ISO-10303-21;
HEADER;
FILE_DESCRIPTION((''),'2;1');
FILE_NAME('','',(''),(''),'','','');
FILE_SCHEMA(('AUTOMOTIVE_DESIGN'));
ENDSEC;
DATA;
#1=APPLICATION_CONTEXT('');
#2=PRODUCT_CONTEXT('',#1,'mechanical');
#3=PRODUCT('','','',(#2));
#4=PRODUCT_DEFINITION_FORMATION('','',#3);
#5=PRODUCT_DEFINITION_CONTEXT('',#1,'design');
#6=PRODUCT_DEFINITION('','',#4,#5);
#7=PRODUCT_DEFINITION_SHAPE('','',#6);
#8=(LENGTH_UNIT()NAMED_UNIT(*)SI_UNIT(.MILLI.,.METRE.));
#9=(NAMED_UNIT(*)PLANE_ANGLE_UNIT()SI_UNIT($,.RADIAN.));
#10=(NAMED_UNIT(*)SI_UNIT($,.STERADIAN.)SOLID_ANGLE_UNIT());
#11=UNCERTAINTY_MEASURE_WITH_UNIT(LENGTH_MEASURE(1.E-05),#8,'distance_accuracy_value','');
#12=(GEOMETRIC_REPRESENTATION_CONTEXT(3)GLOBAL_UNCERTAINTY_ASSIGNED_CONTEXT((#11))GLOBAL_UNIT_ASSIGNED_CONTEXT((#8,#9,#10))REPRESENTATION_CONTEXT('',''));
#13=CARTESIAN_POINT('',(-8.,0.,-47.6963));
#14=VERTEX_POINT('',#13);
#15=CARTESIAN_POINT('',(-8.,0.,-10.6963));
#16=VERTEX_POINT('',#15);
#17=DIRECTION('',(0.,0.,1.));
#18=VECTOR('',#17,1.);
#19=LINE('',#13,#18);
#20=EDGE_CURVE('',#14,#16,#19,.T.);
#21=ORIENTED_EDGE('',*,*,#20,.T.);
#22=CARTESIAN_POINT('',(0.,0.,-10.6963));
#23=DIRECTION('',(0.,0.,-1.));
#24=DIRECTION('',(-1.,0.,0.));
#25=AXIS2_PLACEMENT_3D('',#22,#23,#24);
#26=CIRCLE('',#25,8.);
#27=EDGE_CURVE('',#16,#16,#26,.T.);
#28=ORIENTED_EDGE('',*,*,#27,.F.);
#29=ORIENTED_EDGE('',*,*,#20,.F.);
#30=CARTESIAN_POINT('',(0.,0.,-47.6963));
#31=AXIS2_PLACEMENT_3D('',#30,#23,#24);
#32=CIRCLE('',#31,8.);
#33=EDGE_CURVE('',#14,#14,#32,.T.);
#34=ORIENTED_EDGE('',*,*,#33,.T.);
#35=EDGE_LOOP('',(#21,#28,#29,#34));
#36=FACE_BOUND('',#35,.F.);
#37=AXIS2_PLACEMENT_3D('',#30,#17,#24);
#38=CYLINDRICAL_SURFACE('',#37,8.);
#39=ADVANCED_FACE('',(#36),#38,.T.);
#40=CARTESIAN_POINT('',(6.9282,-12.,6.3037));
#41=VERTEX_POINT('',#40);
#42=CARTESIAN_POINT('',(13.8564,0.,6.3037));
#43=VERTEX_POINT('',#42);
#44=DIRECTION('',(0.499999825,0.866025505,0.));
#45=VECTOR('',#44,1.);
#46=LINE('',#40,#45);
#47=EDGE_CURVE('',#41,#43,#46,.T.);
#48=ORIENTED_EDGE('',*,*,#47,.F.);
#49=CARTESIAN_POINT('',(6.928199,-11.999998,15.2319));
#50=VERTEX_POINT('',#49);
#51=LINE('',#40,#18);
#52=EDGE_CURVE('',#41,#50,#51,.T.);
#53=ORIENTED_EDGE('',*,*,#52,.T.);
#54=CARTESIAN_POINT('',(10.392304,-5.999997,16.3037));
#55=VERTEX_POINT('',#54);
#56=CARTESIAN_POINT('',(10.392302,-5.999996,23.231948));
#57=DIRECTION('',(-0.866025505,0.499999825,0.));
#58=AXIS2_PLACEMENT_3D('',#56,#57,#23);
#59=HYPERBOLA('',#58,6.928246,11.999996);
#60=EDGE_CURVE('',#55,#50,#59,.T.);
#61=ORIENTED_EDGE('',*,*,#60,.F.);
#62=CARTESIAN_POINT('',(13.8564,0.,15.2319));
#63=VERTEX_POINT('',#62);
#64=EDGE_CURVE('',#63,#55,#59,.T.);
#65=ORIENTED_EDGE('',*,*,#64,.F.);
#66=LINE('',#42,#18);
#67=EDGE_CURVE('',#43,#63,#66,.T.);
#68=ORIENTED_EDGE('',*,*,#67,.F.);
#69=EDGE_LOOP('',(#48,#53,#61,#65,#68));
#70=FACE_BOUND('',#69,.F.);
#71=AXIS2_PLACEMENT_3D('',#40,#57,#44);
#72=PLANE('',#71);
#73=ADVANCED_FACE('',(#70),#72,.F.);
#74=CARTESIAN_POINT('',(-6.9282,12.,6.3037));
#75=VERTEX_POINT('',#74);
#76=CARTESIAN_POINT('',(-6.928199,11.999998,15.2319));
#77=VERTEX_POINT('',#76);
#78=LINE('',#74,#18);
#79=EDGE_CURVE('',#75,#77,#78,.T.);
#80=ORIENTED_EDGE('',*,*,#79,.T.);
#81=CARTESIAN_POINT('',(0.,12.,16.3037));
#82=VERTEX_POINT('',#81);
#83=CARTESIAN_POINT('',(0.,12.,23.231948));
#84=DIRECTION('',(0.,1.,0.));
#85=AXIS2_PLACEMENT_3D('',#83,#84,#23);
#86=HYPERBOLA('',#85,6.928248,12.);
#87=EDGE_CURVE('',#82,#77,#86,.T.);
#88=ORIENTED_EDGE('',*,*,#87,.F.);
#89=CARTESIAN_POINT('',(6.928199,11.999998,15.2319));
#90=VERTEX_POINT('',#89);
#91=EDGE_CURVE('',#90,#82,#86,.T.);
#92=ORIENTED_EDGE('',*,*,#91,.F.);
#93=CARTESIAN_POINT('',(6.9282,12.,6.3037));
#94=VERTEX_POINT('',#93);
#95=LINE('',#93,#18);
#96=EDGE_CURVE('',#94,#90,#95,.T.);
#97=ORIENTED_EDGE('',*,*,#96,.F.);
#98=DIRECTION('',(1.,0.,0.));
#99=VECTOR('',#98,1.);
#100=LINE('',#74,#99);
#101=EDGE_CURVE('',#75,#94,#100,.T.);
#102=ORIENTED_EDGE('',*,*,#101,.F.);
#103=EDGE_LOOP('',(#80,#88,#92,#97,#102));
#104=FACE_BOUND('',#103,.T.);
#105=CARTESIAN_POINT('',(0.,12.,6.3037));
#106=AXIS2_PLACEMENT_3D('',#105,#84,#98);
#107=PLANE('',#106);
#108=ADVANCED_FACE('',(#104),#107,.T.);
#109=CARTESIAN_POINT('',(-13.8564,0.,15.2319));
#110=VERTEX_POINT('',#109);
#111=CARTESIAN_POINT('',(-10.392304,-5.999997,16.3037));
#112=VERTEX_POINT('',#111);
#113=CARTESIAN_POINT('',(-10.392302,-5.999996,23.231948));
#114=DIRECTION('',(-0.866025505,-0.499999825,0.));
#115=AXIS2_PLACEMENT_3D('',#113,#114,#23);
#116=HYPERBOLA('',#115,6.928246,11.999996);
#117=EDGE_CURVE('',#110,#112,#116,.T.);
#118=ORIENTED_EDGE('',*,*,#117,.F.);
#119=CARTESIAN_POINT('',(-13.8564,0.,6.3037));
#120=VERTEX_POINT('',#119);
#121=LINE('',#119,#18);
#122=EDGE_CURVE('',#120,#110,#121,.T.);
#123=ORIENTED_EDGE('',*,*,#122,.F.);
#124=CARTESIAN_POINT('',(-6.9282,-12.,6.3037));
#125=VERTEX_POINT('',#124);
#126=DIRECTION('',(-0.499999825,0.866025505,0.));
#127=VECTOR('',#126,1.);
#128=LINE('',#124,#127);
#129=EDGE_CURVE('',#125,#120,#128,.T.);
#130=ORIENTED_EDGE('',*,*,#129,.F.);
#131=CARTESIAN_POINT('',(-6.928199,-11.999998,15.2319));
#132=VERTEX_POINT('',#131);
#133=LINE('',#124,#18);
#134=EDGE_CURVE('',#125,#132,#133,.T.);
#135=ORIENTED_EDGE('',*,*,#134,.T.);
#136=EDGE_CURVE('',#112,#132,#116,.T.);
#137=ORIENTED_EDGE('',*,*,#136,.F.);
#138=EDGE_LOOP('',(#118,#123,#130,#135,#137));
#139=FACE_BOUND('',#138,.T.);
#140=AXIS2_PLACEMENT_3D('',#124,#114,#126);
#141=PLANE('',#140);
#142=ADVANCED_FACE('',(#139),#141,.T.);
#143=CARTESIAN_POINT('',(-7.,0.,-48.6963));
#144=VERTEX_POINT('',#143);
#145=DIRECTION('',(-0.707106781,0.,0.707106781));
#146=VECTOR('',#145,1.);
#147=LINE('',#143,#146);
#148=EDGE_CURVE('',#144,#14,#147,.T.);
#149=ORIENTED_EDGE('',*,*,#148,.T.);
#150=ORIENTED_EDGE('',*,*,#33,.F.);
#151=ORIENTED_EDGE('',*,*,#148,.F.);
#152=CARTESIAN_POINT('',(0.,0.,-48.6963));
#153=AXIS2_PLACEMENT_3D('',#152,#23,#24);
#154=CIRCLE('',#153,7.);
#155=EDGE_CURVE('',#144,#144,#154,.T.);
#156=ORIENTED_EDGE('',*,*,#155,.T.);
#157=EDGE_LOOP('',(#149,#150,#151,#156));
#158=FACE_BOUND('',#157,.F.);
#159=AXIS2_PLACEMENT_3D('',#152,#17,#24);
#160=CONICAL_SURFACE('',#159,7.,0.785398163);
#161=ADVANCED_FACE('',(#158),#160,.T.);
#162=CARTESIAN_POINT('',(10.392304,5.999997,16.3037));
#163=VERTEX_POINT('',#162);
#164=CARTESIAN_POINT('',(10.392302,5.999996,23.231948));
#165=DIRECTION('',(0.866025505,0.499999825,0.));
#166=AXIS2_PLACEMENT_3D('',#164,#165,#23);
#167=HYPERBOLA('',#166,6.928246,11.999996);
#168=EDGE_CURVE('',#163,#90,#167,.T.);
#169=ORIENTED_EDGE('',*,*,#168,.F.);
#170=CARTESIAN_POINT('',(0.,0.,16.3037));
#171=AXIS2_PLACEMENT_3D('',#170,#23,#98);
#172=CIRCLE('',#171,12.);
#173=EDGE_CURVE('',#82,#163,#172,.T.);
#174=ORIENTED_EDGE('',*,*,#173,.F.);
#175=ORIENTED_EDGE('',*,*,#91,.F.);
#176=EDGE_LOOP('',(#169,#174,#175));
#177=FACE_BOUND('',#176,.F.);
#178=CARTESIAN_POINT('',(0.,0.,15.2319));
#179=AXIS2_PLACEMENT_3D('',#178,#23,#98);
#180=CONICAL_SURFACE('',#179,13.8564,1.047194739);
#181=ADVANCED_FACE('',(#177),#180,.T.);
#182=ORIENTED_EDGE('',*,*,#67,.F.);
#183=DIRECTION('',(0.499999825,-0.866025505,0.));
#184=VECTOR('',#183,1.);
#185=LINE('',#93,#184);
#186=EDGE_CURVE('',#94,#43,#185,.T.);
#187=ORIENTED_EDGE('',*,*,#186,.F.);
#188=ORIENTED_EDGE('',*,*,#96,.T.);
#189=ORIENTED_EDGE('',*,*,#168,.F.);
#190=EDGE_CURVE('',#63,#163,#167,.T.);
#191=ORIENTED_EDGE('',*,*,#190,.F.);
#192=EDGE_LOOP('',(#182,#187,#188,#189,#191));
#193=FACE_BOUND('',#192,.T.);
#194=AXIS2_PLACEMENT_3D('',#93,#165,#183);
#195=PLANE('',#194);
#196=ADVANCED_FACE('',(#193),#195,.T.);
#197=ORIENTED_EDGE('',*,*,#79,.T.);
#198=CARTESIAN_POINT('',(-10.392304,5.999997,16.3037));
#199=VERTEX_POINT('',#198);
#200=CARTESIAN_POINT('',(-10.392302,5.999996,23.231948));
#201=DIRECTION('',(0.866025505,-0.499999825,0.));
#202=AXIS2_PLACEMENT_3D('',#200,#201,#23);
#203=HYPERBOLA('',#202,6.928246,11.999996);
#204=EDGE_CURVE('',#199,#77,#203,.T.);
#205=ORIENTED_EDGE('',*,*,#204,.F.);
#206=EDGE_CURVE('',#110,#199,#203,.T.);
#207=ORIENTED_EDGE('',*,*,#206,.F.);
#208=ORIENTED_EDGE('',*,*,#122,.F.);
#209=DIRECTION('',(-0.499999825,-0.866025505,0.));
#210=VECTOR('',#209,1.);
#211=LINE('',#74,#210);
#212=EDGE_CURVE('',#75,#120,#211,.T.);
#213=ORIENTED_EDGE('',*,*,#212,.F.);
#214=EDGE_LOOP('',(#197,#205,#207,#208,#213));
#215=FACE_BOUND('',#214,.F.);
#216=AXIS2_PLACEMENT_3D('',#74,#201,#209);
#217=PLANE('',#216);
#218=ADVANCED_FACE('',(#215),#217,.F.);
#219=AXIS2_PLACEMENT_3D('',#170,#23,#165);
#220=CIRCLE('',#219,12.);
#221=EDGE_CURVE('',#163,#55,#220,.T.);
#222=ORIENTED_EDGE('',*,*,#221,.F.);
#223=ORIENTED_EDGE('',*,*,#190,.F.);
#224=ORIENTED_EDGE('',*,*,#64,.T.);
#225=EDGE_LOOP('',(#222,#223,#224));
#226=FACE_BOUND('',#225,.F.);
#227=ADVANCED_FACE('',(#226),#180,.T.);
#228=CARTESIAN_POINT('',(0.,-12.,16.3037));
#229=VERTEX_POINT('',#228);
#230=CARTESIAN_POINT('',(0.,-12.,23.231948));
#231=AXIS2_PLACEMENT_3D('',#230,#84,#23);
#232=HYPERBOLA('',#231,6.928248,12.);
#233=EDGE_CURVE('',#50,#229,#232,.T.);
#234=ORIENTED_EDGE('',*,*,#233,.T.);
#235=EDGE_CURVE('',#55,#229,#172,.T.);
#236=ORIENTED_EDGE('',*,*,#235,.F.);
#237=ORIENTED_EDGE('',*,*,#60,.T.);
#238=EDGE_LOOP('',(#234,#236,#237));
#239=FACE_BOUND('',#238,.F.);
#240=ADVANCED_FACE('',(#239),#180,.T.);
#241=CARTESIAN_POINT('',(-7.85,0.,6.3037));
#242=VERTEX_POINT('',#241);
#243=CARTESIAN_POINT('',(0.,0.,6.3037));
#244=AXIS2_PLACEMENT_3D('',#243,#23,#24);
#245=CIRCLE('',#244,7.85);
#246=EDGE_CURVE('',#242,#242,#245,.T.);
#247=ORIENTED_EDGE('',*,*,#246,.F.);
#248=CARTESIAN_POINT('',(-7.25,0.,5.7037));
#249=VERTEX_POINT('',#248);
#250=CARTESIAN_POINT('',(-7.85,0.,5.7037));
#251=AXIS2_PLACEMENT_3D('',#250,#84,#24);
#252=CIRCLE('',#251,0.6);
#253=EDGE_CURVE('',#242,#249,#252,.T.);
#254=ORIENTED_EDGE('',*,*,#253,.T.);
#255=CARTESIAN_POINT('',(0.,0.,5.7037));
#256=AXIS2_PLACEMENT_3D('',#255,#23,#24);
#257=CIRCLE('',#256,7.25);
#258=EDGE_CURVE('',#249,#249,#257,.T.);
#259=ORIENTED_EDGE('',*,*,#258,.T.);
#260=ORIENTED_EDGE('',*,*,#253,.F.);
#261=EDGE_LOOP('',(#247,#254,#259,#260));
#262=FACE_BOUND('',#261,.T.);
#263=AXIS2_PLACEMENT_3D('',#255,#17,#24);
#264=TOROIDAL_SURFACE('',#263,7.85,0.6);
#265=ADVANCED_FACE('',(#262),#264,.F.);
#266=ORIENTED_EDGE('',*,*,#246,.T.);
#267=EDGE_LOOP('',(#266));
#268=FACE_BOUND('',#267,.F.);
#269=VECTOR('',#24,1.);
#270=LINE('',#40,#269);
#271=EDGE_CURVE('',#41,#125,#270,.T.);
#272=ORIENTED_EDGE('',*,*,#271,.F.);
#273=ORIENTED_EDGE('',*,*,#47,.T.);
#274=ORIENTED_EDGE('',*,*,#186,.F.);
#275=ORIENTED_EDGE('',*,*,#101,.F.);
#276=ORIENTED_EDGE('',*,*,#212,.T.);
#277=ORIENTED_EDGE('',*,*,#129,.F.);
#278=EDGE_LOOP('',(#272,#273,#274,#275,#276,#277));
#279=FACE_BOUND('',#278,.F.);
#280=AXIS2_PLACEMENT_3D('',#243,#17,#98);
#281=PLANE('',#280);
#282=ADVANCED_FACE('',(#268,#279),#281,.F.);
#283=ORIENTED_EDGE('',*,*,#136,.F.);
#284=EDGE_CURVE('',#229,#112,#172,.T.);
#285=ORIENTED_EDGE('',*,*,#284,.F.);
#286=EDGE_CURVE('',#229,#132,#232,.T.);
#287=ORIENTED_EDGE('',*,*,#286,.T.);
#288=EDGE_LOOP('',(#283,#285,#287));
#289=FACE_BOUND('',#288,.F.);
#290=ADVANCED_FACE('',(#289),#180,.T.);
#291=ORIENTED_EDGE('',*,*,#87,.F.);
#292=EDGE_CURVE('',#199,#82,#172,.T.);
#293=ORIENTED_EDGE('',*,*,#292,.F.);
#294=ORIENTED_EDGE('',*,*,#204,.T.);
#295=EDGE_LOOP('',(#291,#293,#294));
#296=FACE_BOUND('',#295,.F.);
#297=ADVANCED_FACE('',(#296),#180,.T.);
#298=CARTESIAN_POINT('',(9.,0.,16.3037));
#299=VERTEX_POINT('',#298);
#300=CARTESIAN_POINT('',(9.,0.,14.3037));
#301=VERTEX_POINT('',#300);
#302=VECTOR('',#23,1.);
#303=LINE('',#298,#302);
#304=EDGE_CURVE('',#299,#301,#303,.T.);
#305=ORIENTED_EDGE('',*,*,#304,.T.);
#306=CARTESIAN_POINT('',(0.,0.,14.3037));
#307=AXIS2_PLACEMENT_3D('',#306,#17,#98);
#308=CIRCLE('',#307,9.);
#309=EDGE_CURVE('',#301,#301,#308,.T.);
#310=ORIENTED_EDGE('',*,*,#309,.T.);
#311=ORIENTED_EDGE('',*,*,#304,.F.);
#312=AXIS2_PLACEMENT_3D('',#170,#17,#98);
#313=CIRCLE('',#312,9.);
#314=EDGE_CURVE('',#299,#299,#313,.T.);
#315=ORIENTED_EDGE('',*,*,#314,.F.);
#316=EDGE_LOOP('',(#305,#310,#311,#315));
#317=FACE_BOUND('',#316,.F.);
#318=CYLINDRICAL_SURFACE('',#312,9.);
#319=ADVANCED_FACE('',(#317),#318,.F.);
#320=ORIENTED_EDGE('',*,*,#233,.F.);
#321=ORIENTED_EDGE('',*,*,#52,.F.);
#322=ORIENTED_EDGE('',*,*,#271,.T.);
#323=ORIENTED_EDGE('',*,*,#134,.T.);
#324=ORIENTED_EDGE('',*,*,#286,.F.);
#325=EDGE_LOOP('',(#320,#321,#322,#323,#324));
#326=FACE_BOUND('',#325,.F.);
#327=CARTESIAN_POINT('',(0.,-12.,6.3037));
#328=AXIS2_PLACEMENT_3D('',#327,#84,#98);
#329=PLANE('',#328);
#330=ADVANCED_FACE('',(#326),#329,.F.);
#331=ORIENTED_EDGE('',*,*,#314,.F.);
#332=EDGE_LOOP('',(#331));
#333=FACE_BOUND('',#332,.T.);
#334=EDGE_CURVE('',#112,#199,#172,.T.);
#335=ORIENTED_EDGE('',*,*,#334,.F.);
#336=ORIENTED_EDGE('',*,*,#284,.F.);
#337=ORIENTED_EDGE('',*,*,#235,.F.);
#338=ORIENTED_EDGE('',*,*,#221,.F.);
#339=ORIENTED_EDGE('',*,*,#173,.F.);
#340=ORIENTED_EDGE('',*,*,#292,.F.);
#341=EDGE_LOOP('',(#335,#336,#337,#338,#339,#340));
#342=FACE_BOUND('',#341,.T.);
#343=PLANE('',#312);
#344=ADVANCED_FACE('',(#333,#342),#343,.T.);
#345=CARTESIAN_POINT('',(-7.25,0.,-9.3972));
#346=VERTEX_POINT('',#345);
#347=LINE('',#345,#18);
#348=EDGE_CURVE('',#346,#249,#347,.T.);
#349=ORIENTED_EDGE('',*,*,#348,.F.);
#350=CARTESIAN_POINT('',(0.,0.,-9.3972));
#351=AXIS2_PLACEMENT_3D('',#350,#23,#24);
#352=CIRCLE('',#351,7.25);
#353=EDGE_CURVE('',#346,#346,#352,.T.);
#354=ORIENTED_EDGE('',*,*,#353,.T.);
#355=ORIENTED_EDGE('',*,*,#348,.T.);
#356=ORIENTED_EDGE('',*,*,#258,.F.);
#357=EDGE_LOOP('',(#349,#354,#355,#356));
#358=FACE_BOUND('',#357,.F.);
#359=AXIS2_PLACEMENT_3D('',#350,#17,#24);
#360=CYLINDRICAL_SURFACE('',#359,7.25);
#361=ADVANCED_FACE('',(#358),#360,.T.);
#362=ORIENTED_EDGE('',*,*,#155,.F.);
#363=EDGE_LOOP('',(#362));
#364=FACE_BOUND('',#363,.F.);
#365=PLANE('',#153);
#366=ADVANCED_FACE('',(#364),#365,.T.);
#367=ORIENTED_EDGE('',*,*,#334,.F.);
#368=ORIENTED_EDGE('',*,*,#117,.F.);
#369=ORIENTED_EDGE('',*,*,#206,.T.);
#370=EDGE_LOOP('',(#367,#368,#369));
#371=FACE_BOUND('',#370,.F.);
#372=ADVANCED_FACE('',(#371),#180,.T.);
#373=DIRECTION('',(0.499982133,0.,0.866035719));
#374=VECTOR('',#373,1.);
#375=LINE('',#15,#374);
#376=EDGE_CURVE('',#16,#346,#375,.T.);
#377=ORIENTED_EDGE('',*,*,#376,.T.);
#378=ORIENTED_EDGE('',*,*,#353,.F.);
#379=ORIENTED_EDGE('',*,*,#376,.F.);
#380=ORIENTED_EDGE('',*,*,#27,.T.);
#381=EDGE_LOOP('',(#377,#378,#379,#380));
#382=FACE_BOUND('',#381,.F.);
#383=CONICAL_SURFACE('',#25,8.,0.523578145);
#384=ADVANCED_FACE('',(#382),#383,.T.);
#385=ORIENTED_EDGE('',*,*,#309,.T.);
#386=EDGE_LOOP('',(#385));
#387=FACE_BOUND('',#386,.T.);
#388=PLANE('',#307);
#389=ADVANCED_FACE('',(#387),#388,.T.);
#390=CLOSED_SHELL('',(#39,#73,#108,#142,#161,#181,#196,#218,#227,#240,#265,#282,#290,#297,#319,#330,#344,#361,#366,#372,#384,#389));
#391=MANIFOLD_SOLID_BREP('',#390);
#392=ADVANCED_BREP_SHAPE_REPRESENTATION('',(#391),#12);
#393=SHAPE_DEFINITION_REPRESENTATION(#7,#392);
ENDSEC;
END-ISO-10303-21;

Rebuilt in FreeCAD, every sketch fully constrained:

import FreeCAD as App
import Part
import Sketcher
from FreeCAD import Vector
Q = App.Units.Quantity


def edges_at(feature, points):
    """Names of the edges that pass closest to the given points."""
    edges = feature.Shape.Edges
    near = lambda p: min(range(len(edges)), key=lambda i: edges[i].distToShape(Part.Vertex(*p))[0])
    return sorted({f"Edge{near(p) + 1}" for p in points})


def add_polygon(sketch, points):
    """Adds a closed chain of lines whose ends are joined by coincident constraints."""
    first, n = sketch.GeometryCount, len(points)
    for a, b in zip(points, points[1:] + points[:1]):
        sketch.addGeometry(Part.LineSegment(App.Vector(*a, 0), App.Vector(*b, 0)), False)
    for i in range(n):
        sketch.addConstraint(Sketcher.Constraint("Coincident", first + i, 2, first + (i + 1) % n, 1))

doc = App.newDocument("Part")
body = doc.addObject("PartDesign::Body", "Body")

sketch1 = body.newObject("Sketcher::SketchObject", "Sketch")
sketch1.AttachmentSupport = (doc.getObject("XZ_Plane"), [""])
sketch1.MapMode = "FlatFace"
add_polygon(sketch1, [(-7.2, 6.3), (0, 6.3), (0, -48.7), (-7, -48.7), (-8, -47.7), (-8, -10.7), (-7.2, -9.4)])
sketch1.addConstraint(Sketcher.Constraint("Horizontal", 0))
sketch1.addConstraint(Sketcher.Constraint("Vertical", 1))
sketch1.addConstraint(Sketcher.Constraint("Horizontal", 2))
sketch1.addConstraint(Sketcher.Constraint("Vertical", 4))
sketch1.addConstraint(Sketcher.Constraint("Vertical", 6))
sketch1.addConstraint(Sketcher.Constraint("PointOnObject", 0, 2, -2))
sketch1.addConstraint(Sketcher.Constraint("DistanceY", 1, 2, 1, 1, Q("55 mm")))
sketch1.addConstraint(Sketcher.Constraint("DistanceY", 2, 2, 4, 2, Q("38 mm")))
sketch1.addConstraint(Sketcher.Constraint("DistanceX", 2, 2, 2, 1, Q("7 mm")))
sketch1.addConstraint(Sketcher.Constraint("DistanceY", 4, 1, 4, 2, Q("37 mm")))
sketch1.addConstraint(Sketcher.Constraint("Angle", 3, Q("135 deg")))
sketch1.addConstraint(Sketcher.Constraint("Angle", 5, Q("60.0012 deg")))
sketch1.addConstraint(Sketcher.Constraint("Distance", 5, Q("1.5 mm")))
sketch1.addConstraint(Sketcher.Constraint("DistanceY", -1, 1, 0, 2, Q("6.3037 mm")))
revolution = body.newObject("PartDesign::Revolution", "Revolution")
revolution.Profile = sketch1
revolution.ReferenceAxis = (sketch1, ["V_Axis"])
revolution.Angle = 360

sketch2 = body.newObject("Sketcher::SketchObject", "Sketch001")
sketch2.AttachmentSupport = (doc.getObject("XY_Plane"), [""])
sketch2.MapMode = "FlatFace"
sketch2.AttachmentOffset = App.Placement(Vector(0, 0, 6.3037), App.Rotation())
add_polygon(sketch2, [(7, 12), (-7, 12), (-14, 0), (-7, -12), (7, -12), (14, 0)])
sketch2.addConstraint(Sketcher.Constraint("Horizontal", 0))
sketch2.addConstraint(Sketcher.Constraint("Horizontal", 3))
sketch2.addConstraint(Sketcher.Constraint("Symmetric", 0, 2, 3, 2, -1, 1))
sketch2.addConstraint(Sketcher.Constraint("Symmetric", 1, 2, 4, 2, -1, 1))
sketch2.addConstraint(Sketcher.Constraint("PointOnObject", 1, 2, -1))
sketch2.addConstraint(Sketcher.Constraint("Parallel", 2, 5))
sketch2.addConstraint(Sketcher.Constraint("Vertical", 0, 2, 2, 2))
sketch2.addConstraint(Sketcher.Constraint("Angle", 2, Q("-60 deg")))
sketch2.addConstraint(Sketcher.Constraint("DistanceY", 2, 2, 0, 2, Q("24 mm")))
sketch2.addConstraint(Sketcher.Constraint("DistanceX", 0, 2, 0, 1, Q("13.8564 mm")))
pad1 = body.newObject("PartDesign::Pad", "Pad")
pad1.Profile = sketch2
pad1.Length = 10

sketch3 = body.newObject("Sketcher::SketchObject", "Sketch002")
sketch3.AttachmentSupport = (doc.getObject("XZ_Plane"), [""])
sketch3.MapMode = "FlatFace"
add_polygon(sketch3, [(13.9, 15.2), (12, 16.3), (13.9, 16.3)])
sketch3.addConstraint(Sketcher.Constraint("Horizontal", 1))
sketch3.addConstraint(Sketcher.Constraint("Vertical", 2))
sketch3.addConstraint(Sketcher.Constraint("Angle", 0, Q("149.9998 deg")))
sketch3.addConstraint(Sketcher.Constraint("DistanceX", -1, 1, 0, 2, Q("12 mm")))
sketch3.addConstraint(Sketcher.Constraint("DistanceX", 1, 1, 1, 2, Q("1.8564 mm")))
sketch3.addConstraint(Sketcher.Constraint("DistanceY", -1, 1, 2, 2, Q("15.232 mm")))
groove = body.newObject("PartDesign::Groove", "Groove")
groove.Profile = sketch3
groove.ReferenceAxis = (sketch3, ["V_Axis"])
groove.Angle = 360

sketch4 = body.newObject("Sketcher::SketchObject", "Sketch003")
sketch4.AttachmentSupport = (doc.getObject("XY_Plane"), [""])
sketch4.MapMode = "FlatFace"
sketch4.AttachmentOffset = App.Placement(Vector(0, 0, 16.3037), App.Rotation())
sketch4.addGeometry(Part.Circle(Vector(0, 0, 0), Vector(0, 0, 1), 9), False)
sketch4.addConstraint(Sketcher.Constraint("Coincident", 0, 3, -1, 1))
sketch4.addConstraint(Sketcher.Constraint("Diameter", 0, Q("18 mm")))
pocket1 = body.newObject("PartDesign::Pocket", "Pocket")
pocket1.Profile = sketch4
pocket1.Length = 2
doc.recompute()

fillet = body.newObject("PartDesign::Fillet", "Fillet")
fillet.Base = (pocket1, edges_at(pocket1, [(7.25, 0, 6.304)]))
fillet.Radius = 0.6

doc.recompute()
